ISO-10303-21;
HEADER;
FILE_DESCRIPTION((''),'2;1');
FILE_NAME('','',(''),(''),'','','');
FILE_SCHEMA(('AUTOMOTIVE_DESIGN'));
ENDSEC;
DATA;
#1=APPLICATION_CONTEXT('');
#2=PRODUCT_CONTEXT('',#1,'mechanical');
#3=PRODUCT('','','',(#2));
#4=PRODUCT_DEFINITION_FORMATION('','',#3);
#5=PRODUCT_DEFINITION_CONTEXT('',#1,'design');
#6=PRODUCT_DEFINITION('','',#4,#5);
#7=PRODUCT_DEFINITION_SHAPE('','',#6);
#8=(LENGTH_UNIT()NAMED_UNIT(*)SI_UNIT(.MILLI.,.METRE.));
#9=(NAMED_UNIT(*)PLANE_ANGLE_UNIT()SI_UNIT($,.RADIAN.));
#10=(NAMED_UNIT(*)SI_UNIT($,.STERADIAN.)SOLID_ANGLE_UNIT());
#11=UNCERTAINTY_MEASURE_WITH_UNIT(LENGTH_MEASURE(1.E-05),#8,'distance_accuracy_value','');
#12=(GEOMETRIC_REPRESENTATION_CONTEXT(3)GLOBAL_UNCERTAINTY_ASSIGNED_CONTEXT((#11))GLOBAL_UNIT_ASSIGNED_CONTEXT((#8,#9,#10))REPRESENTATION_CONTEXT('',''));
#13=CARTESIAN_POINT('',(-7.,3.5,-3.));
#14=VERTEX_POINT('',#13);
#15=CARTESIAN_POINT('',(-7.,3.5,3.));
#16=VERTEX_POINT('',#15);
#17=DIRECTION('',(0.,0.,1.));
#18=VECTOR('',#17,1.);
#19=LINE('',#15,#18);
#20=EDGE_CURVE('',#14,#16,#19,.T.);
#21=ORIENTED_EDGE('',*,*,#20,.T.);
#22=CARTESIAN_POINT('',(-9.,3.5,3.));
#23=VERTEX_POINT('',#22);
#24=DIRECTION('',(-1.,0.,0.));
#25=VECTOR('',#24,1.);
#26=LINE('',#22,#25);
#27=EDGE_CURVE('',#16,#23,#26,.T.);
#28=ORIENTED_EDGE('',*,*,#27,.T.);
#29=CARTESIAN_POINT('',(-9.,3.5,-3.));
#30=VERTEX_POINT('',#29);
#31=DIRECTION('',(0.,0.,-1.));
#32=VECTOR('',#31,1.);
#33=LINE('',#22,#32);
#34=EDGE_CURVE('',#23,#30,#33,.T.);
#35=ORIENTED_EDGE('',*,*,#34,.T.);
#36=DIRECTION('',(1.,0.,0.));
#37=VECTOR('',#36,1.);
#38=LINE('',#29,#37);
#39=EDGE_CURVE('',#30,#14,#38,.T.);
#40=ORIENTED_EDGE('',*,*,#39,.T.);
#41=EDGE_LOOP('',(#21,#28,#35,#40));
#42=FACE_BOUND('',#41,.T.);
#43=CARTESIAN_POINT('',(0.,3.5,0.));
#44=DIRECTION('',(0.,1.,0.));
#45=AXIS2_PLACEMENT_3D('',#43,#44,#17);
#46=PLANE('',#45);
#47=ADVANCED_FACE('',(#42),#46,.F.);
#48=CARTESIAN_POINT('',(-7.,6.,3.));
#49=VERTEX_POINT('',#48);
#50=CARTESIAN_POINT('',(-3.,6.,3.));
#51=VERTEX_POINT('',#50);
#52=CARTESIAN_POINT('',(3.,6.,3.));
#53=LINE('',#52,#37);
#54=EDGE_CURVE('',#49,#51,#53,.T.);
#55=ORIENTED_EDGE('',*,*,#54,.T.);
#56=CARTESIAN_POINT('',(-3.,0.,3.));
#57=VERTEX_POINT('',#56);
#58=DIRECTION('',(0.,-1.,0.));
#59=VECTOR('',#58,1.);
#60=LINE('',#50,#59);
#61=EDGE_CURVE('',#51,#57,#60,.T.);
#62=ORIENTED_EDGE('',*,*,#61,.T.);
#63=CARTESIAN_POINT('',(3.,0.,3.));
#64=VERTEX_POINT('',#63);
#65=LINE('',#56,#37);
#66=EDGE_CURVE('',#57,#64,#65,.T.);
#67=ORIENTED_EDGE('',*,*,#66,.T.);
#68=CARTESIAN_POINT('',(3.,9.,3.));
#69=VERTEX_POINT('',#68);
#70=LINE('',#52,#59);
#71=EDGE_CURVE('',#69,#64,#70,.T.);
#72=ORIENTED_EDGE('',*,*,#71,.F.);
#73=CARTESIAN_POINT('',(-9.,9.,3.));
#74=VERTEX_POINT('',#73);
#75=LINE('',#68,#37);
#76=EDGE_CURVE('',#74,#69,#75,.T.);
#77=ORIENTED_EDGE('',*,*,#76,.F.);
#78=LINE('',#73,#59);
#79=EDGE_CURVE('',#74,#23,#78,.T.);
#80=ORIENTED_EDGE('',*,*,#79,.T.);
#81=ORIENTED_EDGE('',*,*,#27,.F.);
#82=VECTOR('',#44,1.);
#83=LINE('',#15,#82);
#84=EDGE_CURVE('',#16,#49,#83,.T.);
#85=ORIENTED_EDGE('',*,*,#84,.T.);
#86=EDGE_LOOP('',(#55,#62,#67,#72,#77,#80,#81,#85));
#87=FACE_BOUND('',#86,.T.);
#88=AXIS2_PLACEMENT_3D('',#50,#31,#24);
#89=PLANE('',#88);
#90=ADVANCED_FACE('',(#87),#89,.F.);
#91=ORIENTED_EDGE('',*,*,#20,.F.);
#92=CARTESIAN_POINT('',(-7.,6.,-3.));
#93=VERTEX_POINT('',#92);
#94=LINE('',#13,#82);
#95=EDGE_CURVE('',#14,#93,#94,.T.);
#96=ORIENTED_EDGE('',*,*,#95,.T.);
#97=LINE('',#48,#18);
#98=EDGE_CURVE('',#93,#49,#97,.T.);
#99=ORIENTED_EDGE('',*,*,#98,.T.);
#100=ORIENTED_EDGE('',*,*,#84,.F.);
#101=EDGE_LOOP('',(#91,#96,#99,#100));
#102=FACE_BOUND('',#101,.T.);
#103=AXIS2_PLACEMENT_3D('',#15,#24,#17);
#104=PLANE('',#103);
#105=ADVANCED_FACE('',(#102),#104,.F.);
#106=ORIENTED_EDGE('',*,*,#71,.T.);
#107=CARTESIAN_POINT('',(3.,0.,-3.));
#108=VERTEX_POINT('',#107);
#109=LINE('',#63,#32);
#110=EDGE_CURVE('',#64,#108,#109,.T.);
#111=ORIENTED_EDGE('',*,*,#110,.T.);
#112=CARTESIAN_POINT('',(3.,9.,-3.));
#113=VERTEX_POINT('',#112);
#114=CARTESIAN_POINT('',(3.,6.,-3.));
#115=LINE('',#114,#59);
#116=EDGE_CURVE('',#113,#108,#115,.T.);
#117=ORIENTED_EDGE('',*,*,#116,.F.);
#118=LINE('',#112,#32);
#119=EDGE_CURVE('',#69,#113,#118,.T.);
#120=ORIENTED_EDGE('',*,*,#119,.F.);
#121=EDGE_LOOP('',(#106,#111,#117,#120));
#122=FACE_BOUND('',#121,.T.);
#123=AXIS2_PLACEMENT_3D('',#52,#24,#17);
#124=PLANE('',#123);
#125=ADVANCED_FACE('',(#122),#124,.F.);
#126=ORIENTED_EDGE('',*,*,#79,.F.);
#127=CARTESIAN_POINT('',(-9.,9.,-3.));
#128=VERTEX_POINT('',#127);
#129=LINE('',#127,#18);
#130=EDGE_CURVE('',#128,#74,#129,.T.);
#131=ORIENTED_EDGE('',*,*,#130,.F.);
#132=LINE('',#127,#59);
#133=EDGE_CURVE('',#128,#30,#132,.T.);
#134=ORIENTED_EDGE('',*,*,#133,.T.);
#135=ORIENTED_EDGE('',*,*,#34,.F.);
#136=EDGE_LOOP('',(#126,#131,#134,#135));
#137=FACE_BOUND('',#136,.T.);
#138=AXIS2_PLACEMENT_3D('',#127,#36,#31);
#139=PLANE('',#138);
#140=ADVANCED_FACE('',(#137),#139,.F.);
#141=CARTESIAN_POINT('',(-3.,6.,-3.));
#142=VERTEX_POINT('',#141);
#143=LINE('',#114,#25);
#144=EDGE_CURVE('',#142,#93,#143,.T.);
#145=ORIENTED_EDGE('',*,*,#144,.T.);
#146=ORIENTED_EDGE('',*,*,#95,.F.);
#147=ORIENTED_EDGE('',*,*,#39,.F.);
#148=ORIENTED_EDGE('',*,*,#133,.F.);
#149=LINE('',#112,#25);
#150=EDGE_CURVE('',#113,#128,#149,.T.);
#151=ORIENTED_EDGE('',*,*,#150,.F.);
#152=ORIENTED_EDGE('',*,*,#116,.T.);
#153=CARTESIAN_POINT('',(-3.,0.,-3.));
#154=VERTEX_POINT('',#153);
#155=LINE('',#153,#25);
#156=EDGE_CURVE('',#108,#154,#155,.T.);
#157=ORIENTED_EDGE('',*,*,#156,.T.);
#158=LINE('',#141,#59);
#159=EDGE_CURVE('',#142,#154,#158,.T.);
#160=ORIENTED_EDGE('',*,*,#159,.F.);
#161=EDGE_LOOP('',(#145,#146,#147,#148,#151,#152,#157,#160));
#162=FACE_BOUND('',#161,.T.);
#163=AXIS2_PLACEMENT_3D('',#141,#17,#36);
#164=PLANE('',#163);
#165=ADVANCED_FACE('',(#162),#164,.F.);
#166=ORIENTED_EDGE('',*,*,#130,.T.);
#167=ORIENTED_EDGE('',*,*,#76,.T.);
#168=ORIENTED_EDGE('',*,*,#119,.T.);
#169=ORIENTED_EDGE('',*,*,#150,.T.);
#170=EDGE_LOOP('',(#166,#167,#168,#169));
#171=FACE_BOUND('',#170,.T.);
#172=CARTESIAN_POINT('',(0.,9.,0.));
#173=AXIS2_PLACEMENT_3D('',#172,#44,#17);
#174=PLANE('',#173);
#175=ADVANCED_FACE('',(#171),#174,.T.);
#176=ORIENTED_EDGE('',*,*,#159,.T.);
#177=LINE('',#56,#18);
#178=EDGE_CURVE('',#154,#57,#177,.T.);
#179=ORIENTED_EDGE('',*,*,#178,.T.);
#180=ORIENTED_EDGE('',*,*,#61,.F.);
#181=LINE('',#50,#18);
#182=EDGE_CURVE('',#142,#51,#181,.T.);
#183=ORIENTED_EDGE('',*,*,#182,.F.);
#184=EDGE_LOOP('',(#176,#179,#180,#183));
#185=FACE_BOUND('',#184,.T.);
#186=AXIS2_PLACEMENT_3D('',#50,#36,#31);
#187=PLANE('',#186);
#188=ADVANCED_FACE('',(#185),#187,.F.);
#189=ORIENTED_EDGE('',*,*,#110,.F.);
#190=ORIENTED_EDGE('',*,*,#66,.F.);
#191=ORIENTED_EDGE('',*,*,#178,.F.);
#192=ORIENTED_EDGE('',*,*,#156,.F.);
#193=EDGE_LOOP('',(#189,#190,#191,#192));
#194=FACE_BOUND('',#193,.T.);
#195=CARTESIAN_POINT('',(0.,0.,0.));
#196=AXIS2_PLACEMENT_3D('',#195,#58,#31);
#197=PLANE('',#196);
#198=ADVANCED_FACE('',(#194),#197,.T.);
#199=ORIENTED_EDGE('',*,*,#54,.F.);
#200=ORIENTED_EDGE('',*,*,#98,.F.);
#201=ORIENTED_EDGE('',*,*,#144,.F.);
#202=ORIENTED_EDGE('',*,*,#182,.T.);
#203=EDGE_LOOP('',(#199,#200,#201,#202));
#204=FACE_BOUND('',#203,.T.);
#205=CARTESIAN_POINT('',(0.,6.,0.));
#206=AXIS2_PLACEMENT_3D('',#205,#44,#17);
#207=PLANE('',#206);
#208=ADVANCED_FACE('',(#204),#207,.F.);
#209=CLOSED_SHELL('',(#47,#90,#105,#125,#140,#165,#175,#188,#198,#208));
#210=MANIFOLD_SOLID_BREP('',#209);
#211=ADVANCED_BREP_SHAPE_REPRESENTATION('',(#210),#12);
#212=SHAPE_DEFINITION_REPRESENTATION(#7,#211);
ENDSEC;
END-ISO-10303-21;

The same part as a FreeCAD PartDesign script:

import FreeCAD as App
import Part
import Sketcher

V = App.Vector

doc = App.newDocument("Part")
body = doc.addObject("PartDesign::Body", "Body")

# Sketch on XZ plane
sketch1 = doc.addObject("Sketcher::SketchObject", "Sketch")
body.addObject(sketch1)
sketch1.AttachmentSupport = (doc.XZ_Plane, [""])
sketch1.MapMode = "FlatFace"
sketch1.addGeometry([
    Part.LineSegment(V(-3, -3, 0), V(-3, 3, 0)),
    Part.LineSegment(V(-3, 3, 0), V(3, 3, 0)),
    Part.LineSegment(V(3, 3, 0), V(3, -3, 0)),
    Part.LineSegment(V(3, -3, 0), V(-3, -3, 0)),
], False)
sketch1.addConstraint([
    Sketcher.Constraint("Coincident", 0, 2, 1, 1),
    Sketcher.Constraint("Coincident", 1, 2, 2, 1),
    Sketcher.Constraint("Coincident", 2, 2, 3, 1),
    Sketcher.Constraint("Coincident", 3, 2, 0, 1),
    Sketcher.Constraint("Vertical", 0),
    Sketcher.Constraint("Horizontal", 1),
    Sketcher.Constraint("Vertical", 2),
    Sketcher.Constraint("Horizontal", 3),
    Sketcher.Constraint("Symmetric", 0, 2, 2, 2, -1, 1),
    Sketcher.Constraint("Equal", 3, 0),
    Sketcher.Constraint("DistanceX", 1, 1, 1, 2, 6.0),
])
pad1 = doc.addObject("PartDesign::Pad", "Pad")
body.addObject(pad1)
pad1.Profile = sketch1
pad1.Length = 6
pad1.Reversed = True

# Sketch on XZ plane
sketch2 = doc.addObject("Sketcher::SketchObject", "Sketch001")
body.addObject(sketch2)
sketch2.AttachmentSupport = (doc.XZ_Plane, [""])
sketch2.MapMode = "FlatFace"
sketch2.AttachmentOffset = App.Placement(V(0, 0, -6), App.Rotation())
sketch2.addGeometry([
    Part.LineSegment(V(-9, -3, 0), V(-9, 3, 0)),
    Part.LineSegment(V(-9, 3, 0), V(3, 3, 0)),
    Part.LineSegment(V(3, 3, 0), V(3, -3, 0)),
    Part.LineSegment(V(3, -3, 0), V(-9, -3, 0)),
], False)
sketch2.addConstraint([
    Sketcher.Constraint("Coincident", 0, 2, 1, 1),
    Sketcher.Constraint("Coincident", 1, 2, 2, 1),
    Sketcher.Constraint("Coincident", 2, 2, 3, 1),
    Sketcher.Constraint("Coincident", 3, 2, 0, 1),
    Sketcher.Constraint("Vertical", 0),
    Sketcher.Constraint("Horizontal", 1),
    Sketcher.Constraint("Vertical", 2),
    Sketcher.Constraint("Horizontal", 3),
    Sketcher.Constraint("DistanceX", 1, 1, 1, 2, 12.0),
    Sketcher.Constraint("DistanceY", 0, 1, 0, 2, 6.0),
    Sketcher.Constraint("DistanceX", 0, 2, -1, 1, 9.0),
    Sketcher.Constraint("DistanceY", -1, 1, 0, 2, 3.0),
])
pad2 = doc.addObject("PartDesign::Pad", "Pad001")
body.addObject(pad2)
pad2.Profile = sketch2
pad2.Length = 3
pad2.Reversed = True

# Sketch on XZ plane
sketch3 = doc.addObject("Sketcher::SketchObject", "Sketch002")
body.addObject(sketch3)
sketch3.AttachmentSupport = (doc.XZ_Plane, [""])
sketch3.MapMode = "FlatFace"
sketch3.AttachmentOffset = App.Placement(V(0, 0, -6), App.Rotation())
sketch3.addGeometry([
    Part.LineSegment(V(-9, 3, 0), V(-9, -3, 0)),
    Part.LineSegment(V(-9, -3, 0), V(-7, -3, 0)),
    Part.LineSegment(V(-7, -3, 0), V(-7, 3, 0)),
    Part.LineSegment(V(-7, 3, 0), V(-9, 3, 0)),
], False)
sketch3.addConstraint([
    Sketcher.Constraint("Coincident", 0, 2, 1, 1),
    Sketcher.Constraint("Coincident", 1, 2, 2, 1),
    Sketcher.Constraint("Coincident", 2, 2, 3, 1),
    Sketcher.Constraint("Coincident", 3, 2, 0, 1),
    Sketcher.Constraint("Vertical", 0),
    Sketcher.Constraint("Horizontal", 1),
    Sketcher.Constraint("Vertical", 2),
    Sketcher.Constraint("Horizontal", 3),
    Sketcher.Constraint("DistanceX", 1, 1, 1, 2, 2.0),
    Sketcher.Constraint("DistanceY", 0, 2, 0, 1, 6.0),
    Sketcher.Constraint("DistanceX", 0, 2, -1, 1, 9.0),
    Sketcher.Constraint("DistanceY", 0, 2, -1, 1, 3.0),
])
pad3 = doc.addObject("PartDesign::Pad", "Pad002")
body.addObject(pad3)
pad3.Profile = sketch3
pad3.Length = 2.5

doc.recompute()
